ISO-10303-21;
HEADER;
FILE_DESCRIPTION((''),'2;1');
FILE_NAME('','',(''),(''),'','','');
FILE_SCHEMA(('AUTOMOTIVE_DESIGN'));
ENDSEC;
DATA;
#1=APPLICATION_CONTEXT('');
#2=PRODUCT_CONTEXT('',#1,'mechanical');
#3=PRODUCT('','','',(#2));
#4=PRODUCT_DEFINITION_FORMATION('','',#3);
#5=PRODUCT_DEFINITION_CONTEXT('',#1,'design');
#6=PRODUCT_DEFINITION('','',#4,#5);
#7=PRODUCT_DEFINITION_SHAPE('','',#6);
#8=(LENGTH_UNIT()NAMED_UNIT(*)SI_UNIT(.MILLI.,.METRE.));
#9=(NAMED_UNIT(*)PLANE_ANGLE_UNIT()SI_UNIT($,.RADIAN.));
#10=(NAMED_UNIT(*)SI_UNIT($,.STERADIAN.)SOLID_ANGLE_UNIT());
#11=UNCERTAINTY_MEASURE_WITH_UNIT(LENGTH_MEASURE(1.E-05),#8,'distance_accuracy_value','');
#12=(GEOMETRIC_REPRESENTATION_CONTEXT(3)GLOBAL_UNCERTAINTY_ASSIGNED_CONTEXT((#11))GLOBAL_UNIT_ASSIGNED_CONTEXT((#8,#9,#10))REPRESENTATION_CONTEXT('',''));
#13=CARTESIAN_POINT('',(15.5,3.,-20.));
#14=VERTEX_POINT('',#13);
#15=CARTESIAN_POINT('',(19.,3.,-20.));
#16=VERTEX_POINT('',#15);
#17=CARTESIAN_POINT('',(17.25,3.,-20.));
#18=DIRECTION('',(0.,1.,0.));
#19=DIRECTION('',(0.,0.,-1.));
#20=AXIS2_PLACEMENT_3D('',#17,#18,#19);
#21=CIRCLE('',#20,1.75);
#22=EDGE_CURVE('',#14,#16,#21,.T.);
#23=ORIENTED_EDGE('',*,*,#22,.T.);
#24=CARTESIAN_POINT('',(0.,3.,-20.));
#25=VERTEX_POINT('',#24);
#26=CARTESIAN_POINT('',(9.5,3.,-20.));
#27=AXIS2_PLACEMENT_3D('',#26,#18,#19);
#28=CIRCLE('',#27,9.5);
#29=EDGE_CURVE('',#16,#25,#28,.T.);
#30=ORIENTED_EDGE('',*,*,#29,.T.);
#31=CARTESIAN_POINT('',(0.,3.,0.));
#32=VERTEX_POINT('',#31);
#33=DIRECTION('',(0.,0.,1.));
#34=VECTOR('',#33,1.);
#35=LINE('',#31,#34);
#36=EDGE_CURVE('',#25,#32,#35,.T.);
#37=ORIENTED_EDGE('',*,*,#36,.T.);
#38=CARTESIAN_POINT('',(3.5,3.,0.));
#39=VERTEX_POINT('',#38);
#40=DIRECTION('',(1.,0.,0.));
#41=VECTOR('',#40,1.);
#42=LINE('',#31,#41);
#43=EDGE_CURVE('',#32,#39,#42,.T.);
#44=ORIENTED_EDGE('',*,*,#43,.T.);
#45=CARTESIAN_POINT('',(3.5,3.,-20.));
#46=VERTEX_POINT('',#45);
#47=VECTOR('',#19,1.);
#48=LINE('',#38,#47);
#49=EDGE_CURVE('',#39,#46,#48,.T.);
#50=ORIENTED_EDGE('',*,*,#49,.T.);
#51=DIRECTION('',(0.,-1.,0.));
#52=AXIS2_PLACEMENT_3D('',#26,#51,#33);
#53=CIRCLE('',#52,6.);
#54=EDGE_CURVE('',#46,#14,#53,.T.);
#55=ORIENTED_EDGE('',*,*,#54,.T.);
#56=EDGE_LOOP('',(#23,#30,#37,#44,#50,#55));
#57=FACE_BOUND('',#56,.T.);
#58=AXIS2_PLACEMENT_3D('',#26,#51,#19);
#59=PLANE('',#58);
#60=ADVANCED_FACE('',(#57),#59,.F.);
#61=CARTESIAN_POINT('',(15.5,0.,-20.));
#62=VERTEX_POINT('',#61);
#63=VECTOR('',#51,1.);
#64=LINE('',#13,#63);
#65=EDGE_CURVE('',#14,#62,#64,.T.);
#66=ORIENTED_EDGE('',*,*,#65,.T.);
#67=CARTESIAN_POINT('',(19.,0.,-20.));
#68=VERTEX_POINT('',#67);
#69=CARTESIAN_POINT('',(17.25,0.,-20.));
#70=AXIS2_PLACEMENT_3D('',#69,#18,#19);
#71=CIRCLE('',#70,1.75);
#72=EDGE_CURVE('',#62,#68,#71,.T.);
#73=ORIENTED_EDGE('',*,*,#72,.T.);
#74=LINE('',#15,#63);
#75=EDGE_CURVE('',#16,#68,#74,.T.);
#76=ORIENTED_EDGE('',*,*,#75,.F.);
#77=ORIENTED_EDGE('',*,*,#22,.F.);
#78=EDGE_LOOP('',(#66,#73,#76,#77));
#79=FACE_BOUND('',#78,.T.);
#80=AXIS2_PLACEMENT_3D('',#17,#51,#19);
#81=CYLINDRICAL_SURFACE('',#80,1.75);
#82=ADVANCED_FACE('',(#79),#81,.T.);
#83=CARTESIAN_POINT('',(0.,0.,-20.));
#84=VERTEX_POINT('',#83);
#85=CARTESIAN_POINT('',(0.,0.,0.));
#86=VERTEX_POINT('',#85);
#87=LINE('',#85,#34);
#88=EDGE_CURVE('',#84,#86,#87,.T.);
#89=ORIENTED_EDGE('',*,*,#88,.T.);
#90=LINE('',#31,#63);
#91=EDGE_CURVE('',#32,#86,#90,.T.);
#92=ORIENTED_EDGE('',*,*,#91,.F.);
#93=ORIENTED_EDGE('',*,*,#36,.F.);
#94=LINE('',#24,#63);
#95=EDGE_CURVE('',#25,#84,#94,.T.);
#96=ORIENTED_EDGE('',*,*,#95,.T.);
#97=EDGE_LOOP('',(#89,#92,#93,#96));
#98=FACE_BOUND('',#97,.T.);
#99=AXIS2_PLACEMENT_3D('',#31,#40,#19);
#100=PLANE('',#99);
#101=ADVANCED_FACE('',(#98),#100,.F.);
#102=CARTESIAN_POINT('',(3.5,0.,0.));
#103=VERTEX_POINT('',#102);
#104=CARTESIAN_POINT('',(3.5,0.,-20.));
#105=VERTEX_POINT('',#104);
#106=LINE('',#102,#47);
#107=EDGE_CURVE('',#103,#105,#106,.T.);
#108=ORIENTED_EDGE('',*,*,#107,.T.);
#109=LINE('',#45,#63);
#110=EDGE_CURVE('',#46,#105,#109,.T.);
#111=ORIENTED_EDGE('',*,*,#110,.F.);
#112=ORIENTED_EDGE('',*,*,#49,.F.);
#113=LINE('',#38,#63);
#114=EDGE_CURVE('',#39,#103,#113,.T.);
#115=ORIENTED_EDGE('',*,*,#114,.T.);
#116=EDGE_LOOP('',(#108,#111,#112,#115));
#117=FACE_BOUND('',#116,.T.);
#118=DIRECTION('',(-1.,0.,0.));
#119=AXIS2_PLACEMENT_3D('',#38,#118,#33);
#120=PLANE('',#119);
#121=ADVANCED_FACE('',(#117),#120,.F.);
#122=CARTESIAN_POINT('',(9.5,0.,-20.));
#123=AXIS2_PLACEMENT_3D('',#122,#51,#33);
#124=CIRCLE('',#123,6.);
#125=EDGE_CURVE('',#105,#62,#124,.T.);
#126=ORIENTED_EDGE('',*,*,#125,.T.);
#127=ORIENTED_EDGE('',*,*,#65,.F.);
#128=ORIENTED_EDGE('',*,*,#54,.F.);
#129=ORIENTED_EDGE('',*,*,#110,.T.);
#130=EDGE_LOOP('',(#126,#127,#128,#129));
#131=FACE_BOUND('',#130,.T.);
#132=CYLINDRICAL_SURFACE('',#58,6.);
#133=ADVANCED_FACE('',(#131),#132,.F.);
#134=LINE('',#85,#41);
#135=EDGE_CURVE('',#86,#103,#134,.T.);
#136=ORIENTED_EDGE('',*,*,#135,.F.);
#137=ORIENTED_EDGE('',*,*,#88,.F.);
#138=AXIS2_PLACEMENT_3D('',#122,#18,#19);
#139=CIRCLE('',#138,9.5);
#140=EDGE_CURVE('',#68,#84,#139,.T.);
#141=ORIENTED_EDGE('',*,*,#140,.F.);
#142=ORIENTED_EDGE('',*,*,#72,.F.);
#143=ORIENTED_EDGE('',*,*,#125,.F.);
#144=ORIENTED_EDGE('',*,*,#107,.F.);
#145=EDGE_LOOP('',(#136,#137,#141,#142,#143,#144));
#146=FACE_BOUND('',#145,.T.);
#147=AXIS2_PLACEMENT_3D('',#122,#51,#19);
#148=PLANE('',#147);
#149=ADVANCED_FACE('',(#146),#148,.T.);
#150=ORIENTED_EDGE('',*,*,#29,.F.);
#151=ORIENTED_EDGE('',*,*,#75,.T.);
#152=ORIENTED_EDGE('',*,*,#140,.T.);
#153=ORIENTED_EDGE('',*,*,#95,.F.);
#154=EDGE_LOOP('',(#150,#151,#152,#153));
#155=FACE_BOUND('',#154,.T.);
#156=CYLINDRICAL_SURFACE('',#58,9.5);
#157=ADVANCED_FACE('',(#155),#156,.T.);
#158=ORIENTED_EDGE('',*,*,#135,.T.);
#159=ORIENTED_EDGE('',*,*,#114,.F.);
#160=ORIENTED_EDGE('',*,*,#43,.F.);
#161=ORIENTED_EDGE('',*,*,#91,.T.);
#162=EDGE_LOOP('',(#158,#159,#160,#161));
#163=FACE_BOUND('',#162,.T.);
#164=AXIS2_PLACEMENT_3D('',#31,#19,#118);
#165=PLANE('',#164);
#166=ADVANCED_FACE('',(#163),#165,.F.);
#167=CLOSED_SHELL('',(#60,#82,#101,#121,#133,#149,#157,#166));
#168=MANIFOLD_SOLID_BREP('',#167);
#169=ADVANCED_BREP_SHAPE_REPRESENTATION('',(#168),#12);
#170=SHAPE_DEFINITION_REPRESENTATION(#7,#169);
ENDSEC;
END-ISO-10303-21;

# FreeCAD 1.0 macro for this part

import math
import FreeCAD as App
import Part
import Sketcher

V = App.Vector

doc = App.newDocument("Part")
params = doc.addObject("Spreadsheet::Sheet", "Params")
for row, (alias, value) in enumerate([
    ("sketch1_radius", "6 mm"),
    ("sketch1_radius2", "9.5 mm"),
    ("sketch1_height", "20 mm"),
    ("pad1_length", "3 mm"),
], start=1):
    params.set(f"A{row}", alias)
    params.set(f"B{row}", "=" + value)
    params.setAlias(f"B{row}", alias)

body = doc.addObject("PartDesign::Body", "Body")

# Sketch on XZ plane
sketch1 = body.newObject("Sketcher::SketchObject", "Sketch")
sketch1.AttachmentSupport = (doc.getObject("XZ_Plane"), [""])
sketch1.MapMode = "FlatFace"
sketch1.addGeometry(Part.LineSegment(V(0, 0, 0), V(3.5, 0, 0)), False)
sketch1.addGeometry(Part.LineSegment(V(3.5, 0, 0), V(3.5, -20, 0)), False)
sketch1.addGeometry(Part.ArcOfCircle(Part.Circle(V(9.5, -20, 0), V(0, 0, 1), 6), math.radians(180), math.radians(360)), False)
sketch1.addGeometry(Part.ArcOfCircle(Part.Circle(V(17.2, -20, 0), V(0, 0, 1), 1.8), math.radians(0), math.radians(180)), False)
sketch1.addGeometry(Part.ArcOfCircle(Part.Circle(V(9.5, -20, 0), V(0, 0, 1), 9.5), math.radians(180), math.radians(360)), False)
sketch1.addGeometry(Part.LineSegment(V(0, -20, 0), V(0, 0, 0)), False)
sketch1.addConstraint(Sketcher.Constraint("Coincident", 0, 2, 1, 1))
sketch1.addConstraint(Sketcher.Constraint("Tangent", 1, 2, 2, 1))
sketch1.addConstraint(Sketcher.Constraint("Tangent", 2, 2, 3, 2))
sketch1.addConstraint(Sketcher.Constraint("Tangent", 3, 1, 4, 2))
sketch1.addConstraint(Sketcher.Constraint("Tangent", 4, 1, 5, 1))
sketch1.addConstraint(Sketcher.Constraint("Coincident", 5, 2, 0, 1))
sketch1.addConstraint(Sketcher.Constraint("Horizontal", 0))
sketch1.addConstraint(Sketcher.Constraint("Vertical", 1))
sketch1.addConstraint(Sketcher.Constraint("Vertical", 5))
sketch1.addConstraint(Sketcher.Constraint("Coincident", 5, 2, -1, 1))
sketch1.addConstraint(Sketcher.Constraint("Coincident", 4, 3, 2, 3))
sketch1.addConstraint(Sketcher.Constraint("Horizontal", 2, 3, 3, 3))
sketch1.addConstraint(Sketcher.Constraint("Radius", 2, 6.0))
sketch1.addConstraint(Sketcher.Constraint("Radius", 4, 9.5))
sketch1.addConstraint(Sketcher.Constraint("DistanceY", 1, 2, 1, 1, 20.0))
sketch1.setExpression("Constraints[12]", "Params.sketch1_radius")
sketch1.setExpression("Constraints[13]", "Params.sketch1_radius2")
sketch1.setExpression("Constraints[14]", "Params.sketch1_height")
pad1 = body.newObject("PartDesign::Pad", "Pad")
pad1.Profile = sketch1
pad1.setExpression("Length", "Params.pad1_length")
pad1.Reversed = True

doc.recompute()
